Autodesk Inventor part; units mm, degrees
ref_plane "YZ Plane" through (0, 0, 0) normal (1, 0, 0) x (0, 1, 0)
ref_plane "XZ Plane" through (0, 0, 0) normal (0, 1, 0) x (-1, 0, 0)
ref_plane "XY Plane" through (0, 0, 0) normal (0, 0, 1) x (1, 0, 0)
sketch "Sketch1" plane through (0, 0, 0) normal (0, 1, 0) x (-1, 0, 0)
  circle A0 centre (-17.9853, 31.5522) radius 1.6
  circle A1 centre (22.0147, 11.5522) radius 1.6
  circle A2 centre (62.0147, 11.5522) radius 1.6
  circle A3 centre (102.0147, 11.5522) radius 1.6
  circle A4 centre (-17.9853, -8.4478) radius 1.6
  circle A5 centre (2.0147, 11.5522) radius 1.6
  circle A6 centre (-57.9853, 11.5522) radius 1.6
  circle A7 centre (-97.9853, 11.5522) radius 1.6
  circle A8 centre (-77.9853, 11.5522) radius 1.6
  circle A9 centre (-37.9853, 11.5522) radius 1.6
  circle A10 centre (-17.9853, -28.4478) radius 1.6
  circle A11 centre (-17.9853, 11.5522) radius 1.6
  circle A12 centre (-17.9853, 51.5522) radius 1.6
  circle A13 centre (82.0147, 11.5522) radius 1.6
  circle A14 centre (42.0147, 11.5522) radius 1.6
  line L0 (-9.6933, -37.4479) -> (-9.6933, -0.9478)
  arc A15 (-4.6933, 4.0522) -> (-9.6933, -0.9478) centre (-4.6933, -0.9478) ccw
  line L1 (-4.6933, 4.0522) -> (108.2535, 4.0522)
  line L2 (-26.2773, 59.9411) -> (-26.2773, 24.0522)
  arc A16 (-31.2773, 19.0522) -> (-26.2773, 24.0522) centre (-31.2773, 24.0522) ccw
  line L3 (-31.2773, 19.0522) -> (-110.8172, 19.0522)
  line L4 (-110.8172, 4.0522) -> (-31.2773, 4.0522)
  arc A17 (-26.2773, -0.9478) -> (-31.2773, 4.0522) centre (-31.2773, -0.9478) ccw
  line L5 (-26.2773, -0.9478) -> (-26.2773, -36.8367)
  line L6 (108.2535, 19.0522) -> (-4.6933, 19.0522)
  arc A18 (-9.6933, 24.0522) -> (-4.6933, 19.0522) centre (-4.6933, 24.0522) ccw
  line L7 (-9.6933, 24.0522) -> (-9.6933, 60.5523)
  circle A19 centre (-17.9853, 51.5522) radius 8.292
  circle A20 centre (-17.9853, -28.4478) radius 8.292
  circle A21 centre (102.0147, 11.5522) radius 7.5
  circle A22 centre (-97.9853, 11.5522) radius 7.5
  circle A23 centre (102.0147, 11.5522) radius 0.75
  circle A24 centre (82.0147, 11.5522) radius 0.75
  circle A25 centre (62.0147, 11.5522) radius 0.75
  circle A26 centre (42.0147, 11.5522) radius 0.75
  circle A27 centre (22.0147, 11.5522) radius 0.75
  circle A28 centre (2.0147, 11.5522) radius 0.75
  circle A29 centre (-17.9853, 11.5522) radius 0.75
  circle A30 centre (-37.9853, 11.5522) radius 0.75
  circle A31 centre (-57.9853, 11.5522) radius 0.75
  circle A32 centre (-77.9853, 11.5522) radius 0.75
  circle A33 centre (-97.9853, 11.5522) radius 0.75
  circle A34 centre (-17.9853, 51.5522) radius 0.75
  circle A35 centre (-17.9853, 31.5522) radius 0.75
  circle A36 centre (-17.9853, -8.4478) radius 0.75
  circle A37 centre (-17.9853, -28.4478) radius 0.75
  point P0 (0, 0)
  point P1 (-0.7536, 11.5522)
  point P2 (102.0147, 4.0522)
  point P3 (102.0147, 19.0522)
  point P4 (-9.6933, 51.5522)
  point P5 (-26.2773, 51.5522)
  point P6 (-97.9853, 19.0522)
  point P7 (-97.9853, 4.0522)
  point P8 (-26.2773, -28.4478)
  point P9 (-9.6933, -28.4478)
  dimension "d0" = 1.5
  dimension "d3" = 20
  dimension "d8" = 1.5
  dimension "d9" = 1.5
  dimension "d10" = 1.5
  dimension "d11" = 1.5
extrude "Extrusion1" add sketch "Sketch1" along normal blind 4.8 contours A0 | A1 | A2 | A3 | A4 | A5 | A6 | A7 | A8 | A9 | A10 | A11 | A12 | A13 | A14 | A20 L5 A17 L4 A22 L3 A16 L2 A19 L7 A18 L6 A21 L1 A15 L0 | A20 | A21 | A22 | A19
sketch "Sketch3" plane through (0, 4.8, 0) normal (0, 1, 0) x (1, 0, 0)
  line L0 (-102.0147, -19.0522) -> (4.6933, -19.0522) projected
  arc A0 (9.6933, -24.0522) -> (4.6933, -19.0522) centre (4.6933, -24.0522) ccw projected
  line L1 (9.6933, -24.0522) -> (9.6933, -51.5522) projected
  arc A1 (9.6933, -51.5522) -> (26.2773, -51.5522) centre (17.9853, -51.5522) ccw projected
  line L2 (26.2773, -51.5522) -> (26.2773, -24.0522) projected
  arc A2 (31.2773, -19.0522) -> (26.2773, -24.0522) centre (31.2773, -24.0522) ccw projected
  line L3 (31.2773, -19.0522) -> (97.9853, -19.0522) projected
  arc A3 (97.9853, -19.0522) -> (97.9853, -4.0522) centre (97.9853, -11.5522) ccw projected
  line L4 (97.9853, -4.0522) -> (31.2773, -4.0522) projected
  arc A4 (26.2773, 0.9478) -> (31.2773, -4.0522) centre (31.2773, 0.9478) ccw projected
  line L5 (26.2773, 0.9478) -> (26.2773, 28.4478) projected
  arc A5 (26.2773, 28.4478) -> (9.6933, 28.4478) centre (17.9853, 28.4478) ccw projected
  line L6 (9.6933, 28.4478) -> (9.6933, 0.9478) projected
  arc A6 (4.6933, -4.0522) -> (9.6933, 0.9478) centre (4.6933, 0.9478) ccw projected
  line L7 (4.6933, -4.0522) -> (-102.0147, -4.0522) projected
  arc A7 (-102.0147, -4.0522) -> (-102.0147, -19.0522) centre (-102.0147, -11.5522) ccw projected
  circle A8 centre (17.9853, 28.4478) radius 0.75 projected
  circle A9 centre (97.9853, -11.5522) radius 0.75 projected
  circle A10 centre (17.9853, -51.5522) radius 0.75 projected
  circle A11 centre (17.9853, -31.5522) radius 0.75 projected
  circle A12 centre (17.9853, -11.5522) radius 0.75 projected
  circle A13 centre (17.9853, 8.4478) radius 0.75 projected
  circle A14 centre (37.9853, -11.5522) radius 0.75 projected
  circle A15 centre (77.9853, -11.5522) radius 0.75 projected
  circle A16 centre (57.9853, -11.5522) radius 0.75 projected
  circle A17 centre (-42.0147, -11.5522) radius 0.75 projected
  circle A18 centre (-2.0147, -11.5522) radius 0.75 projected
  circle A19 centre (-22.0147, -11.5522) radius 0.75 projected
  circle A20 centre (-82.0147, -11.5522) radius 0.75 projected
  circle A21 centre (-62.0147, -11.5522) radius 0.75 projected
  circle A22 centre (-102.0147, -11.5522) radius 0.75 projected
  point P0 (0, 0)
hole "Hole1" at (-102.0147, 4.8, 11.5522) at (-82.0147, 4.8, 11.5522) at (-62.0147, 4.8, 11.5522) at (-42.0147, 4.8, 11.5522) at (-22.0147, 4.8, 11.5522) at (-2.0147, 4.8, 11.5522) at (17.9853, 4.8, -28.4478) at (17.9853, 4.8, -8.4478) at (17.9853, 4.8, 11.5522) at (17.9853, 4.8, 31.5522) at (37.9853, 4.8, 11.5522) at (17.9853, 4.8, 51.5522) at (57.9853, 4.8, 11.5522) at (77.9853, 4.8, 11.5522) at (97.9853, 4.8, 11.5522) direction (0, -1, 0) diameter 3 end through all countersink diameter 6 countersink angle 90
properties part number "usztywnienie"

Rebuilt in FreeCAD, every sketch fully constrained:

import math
import FreeCAD as App
import Part
import Sketcher

doc = App.newDocument("Part")
body = doc.addObject("PartDesign::Body", "Body")

# Sketch on XZ plane
sketch1 = body.newObject("Sketcher::SketchObject", "Sketch")
sketch1.AttachmentSupport = (doc.getObject("XZ_Plane"), [""])
sketch1.MapMode = "FlatFace"
sketch1.addGeometry([
    Part.LineSegment(App.Vector(26.3, -0.9, 0), App.Vector(26.3, -28.4, 0)),  # 0
    Part.ArcOfCircle(Part.Circle(App.Vector(18, -28.4, 0), App.Vector(0, 0, 1), 8.3), math.radians(180), math.radians(360)),  # 1
    Part.LineSegment(App.Vector(9.7, -28.4, 0), App.Vector(9.7, -0.9, 0)),  # 2
    Part.ArcOfCircle(Part.Circle(App.Vector(4.7, -0.9, 0), App.Vector(0, 0, 1), 5), math.radians(0), math.radians(90)),  # 3
    Part.LineSegment(App.Vector(4.7, 4.1, 0), App.Vector(-102, 4.1, 0)),  # 4
    Part.ArcOfCircle(Part.Circle(App.Vector(-102, 11.6, 0), App.Vector(0, 0, 1), 7.5), math.radians(90), math.radians(270)),  # 5
    Part.LineSegment(App.Vector(-102, 19.1, 0), App.Vector(4.7, 19.1, 0)),  # 6
    Part.ArcOfCircle(Part.Circle(App.Vector(4.7, 24.1, 0), App.Vector(0, 0, 1), 5), math.radians(-90), math.radians(0)),  # 7
    Part.LineSegment(App.Vector(9.7, 24.1, 0), App.Vector(9.7, 51.6, 0)),  # 8
    Part.ArcOfCircle(Part.Circle(App.Vector(18, 51.6, 0), App.Vector(0, 0, 1), 8.3), math.radians(0), math.radians(180)),  # 9
    Part.LineSegment(App.Vector(26.3, 51.6, 0), App.Vector(26.3, 24.1, 0)),  # 10
    Part.ArcOfCircle(Part.Circle(App.Vector(31.3, 24.1, 0), App.Vector(0, 0, 1), 5), math.radians(180), math.radians(270)),  # 11
    Part.LineSegment(App.Vector(31.3, 19.1, 0), App.Vector(98, 19.1, 0)),  # 12
    Part.ArcOfCircle(Part.Circle(App.Vector(98, 11.6, 0), App.Vector(0, 0, 1), 7.5), math.radians(-90), math.radians(90)),  # 13
    Part.LineSegment(App.Vector(98, 4.1, 0), App.Vector(31.3, 4.1, 0)),  # 14
    Part.ArcOfCircle(Part.Circle(App.Vector(31.3, -0.9, 0), App.Vector(0, 0, 1), 5), math.radians(90), math.radians(180)),  # 15
    Part.Circle(App.Vector(18, 31.6, 0), App.Vector(0, 0, 1), 0.8),  # 16
    Part.Circle(App.Vector(18, -8.4, 0), App.Vector(0, 0, 1), 0.8),  # 17
    Part.Circle(App.Vector(78, 11.6, 0), App.Vector(0, 0, 1), 0.8),  # 18
    Part.Circle(App.Vector(58, 11.6, 0), App.Vector(0, 0, 1), 0.8),  # 19
    Part.Circle(App.Vector(38, 11.6, 0), App.Vector(0, 0, 1), 0.8),  # 20
    Part.Circle(App.Vector(18, 11.6, 0), App.Vector(0, 0, 1), 0.8),  # 21
    Part.Circle(App.Vector(-82, 11.6, 0), App.Vector(0, 0, 1), 0.8),  # 22
    Part.Circle(App.Vector(-2, 11.6, 0), App.Vector(0, 0, 1), 0.8),  # 23
    Part.Circle(App.Vector(-22, 11.6, 0), App.Vector(0, 0, 1), 0.8),  # 24
    Part.Circle(App.Vector(-42, 11.6, 0), App.Vector(0, 0, 1), 0.8),  # 25
    Part.Circle(App.Vector(-62, 11.6, 0), App.Vector(0, 0, 1), 0.8),  # 26
    Part.Circle(App.Vector(18, -28.4, 0), App.Vector(0, 0, 1), 0.8),  # 27
    Part.Circle(App.Vector(98, 11.6, 0), App.Vector(0, 0, 1), 0.8),  # 28
    Part.Circle(App.Vector(18, 51.6, 0), App.Vector(0, 0, 1), 0.8),  # 29
    Part.Circle(App.Vector(-102, 11.6, 0), App.Vector(0, 0, 1), 0.8),  # 30
], False)
sketch1.addConstraint([
    Sketcher.Constraint("Tangent", 0, 2, 1, 2),
    Sketcher.Constraint("Tangent", 1, 1, 2, 1),
    Sketcher.Constraint("Tangent", 2, 2, 3, 1),
    Sketcher.Constraint("Tangent", 3, 2, 4, 1),
    Sketcher.Constraint("Tangent", 4, 2, 5, 2),
    Sketcher.Constraint("Tangent", 5, 1, 6, 1),
    Sketcher.Constraint("Tangent", 6, 2, 7, 1),
    Sketcher.Constraint("Tangent", 7, 2, 8, 1),
    Sketcher.Constraint("Tangent", 8, 2, 9, 2),
    Sketcher.Constraint("Tangent", 9, 1, 10, 1),
    Sketcher.Constraint("Tangent", 10, 2, 11, 1),
    Sketcher.Constraint("Tangent", 11, 2, 12, 1),
    Sketcher.Constraint("Tangent", 12, 2, 13, 2),
    Sketcher.Constraint("Tangent", 13, 1, 14, 1),
    Sketcher.Constraint("Tangent", 14, 2, 15, 1),
    Sketcher.Constraint("Tangent", 15, 2, 0, 1),
    Sketcher.Constraint("Vertical", 0),
    Sketcher.Constraint("Vertical", 2),
    Sketcher.Constraint("Horizontal", 4),
    Sketcher.Constraint("Horizontal", 6),
    Sketcher.Constraint("Vertical", 8),
    Sketcher.Constraint("Vertical", 10),
    Sketcher.Constraint("Horizontal", 12),
    Sketcher.Constraint("Horizontal", 14),
    Sketcher.Constraint("Coincident", 27, 3, 1, 3),
    Sketcher.Constraint("Coincident", 28, 3, 13, 3),
    Sketcher.Constraint("Coincident", 29, 3, 9, 3),
    Sketcher.Constraint("Coincident", 30, 3, 5, 3),
    Sketcher.Constraint("Equal", 3, 7),
    Sketcher.Constraint("Equal", 1, 9),
    Sketcher.Constraint("Equal", 7, 11),
    Sketcher.Constraint("Equal", 5, 13),
    Sketcher.Constraint("Equal", 11, 15),
    Sketcher.Constraint("Equal", 16, 17),
    Sketcher.Constraint("Equal", 17, 18),
    Sketcher.Constraint("Equal", 18, 19),
    Sketcher.Constraint("Equal", 19, 20),
    Sketcher.Constraint("Equal", 20, 21),
    Sketcher.Constraint("Equal", 21, 22),
    Sketcher.Constraint("Equal", 22, 23),
    Sketcher.Constraint("Equal", 23, 24),
    Sketcher.Constraint("Equal", 24, 25),
    Sketcher.Constraint("Equal", 25, 26),
    Sketcher.Constraint("Equal", 26, 27),
    Sketcher.Constraint("Equal", 27, 28),
    Sketcher.Constraint("Equal", 28, 29),
    Sketcher.Constraint("Equal", 29, 30),
    Sketcher.Constraint("Horizontal", 7, 3, 11, 3),
    Sketcher.Constraint("Horizontal", 13, 3, 18, 3),
    Sketcher.Constraint("Horizontal", 18, 3, 19, 3),
    Sketcher.Constraint("Horizontal", 19, 3, 20, 3),
    Sketcher.Constraint("Horizontal", 20, 3, 21, 3),
    Sketcher.Constraint("Horizontal", 21, 3, 22, 3),
    Sketcher.Constraint("Horizontal", 22, 3, 23, 3),
    Sketcher.Constraint("Horizontal", 23, 3, 24, 3),
    Sketcher.Constraint("Horizontal", 24, 3, 25, 3),
    Sketcher.Constraint("Horizontal", 25, 3, 26, 3),
    Sketcher.Constraint("Vertical", 3, 3, 7, 3),
    Sketcher.Constraint("Vertical", 9, 3, 16, 3),
    Sketcher.Constraint("Vertical", 16, 3, 17, 3),
    Sketcher.Constraint("Vertical", 17, 3, 21, 3),
    Sketcher.Constraint("Equal", 2, 8),
    Sketcher.Constraint("Radius", 3, 5.0),
    Sketcher.Constraint("Diameter", 16, 1.5),
    Sketcher.Constraint("DistanceY", 16, 3, 9, 3, 20.0),
    Sketcher.Constraint("DistanceY", 1, 3, 17, 3, 20.0),
    Sketcher.Constraint("DistanceX", 18, 3, 13, 3, 20.0),
    Sketcher.Constraint("DistanceY", 18, 3, 16, 3, 20.0),
    Sketcher.Constraint("DistanceX", 19, 3, 18, 3, 20.0),
    Sketcher.Constraint("DistanceX", 20, 3, 19, 3, 20.0),
    Sketcher.Constraint("DistanceX", 16, 3, 20, 3, 20.0),
    Sketcher.Constraint("DistanceX", 5, 3, 22, 3, 20.0),
    Sketcher.Constraint("DistanceX", 23, 3, 21, 3, 20.0),
    Sketcher.Constraint("DistanceX", 24, 3, 23, 3, 20.0),
    Sketcher.Constraint("DistanceX", 25, 3, 24, 3, 20.0),
    Sketcher.Constraint("DistanceX", 26, 3, 25, 3, 20.0),
    Sketcher.Constraint("DistanceX", 22, 3, 26, 3, 20.0),
    Sketcher.Constraint("Radius", 5, 7.5),
    Sketcher.Constraint("Radius", 1, 8.292),
    Sketcher.Constraint("DistanceX", -1, 1, 1, 3, 17.9853),
    Sketcher.Constraint("DistanceY", 1, 3, -1, 1, 28.4478),
])
pad1 = body.newObject("PartDesign::Pad", "Pad")
pad1.Profile = sketch1
pad1.Length = 4.8
pad1.Reversed = True

# Sketch on XZ plane
sketch2 = body.newObject("Sketcher::SketchObject", "Sketch001")
sketch2.AttachmentSupport = (doc.getObject("XZ_Plane"), [""])
sketch2.MapMode = "FlatFace"
sketch2.AttachmentOffset = App.Placement(App.Vector(0, 0, -4.8), App.Rotation())
sketch2.addGeometry([
    Part.Circle(App.Vector(-102, 11.6, 0), App.Vector(0, 0, 1), 1.5),  # 0
    Part.Circle(App.Vector(-82, 11.6, 0), App.Vector(0, 0, 1), 1.5),  # 1
    Part.Circle(App.Vector(-62, 11.6, 0), App.Vector(0, 0, 1), 1.5),  # 2
    Part.Circle(App.Vector(-42, 11.6, 0), App.Vector(0, 0, 1), 1.5),  # 3
    Part.Circle(App.Vector(-22, 11.6, 0), App.Vector(0, 0, 1), 1.5),  # 4
    Part.Circle(App.Vector(-2, 11.6, 0), App.Vector(0, 0, 1), 1.5),  # 5
    Part.Circle(App.Vector(18, -28.4, 0), App.Vector(0, 0, 1), 1.5),  # 6
    Part.Circle(App.Vector(18, -8.4, 0), App.Vector(0, 0, 1), 1.5),  # 7
    Part.Circle(App.Vector(18, 11.6, 0), App.Vector(0, 0, 1), 1.5),  # 8
    Part.Circle(App.Vector(18, 31.6, 0), App.Vector(0, 0, 1), 1.5),  # 9
    Part.Circle(App.Vector(38, 11.6, 0), App.Vector(0, 0, 1), 1.5),  # 10
    Part.Circle(App.Vector(18, 51.6, 0), App.Vector(0, 0, 1), 1.5),  # 11
    Part.Circle(App.Vector(58, 11.6, 0), App.Vector(0, 0, 1), 1.5),  # 12
    Part.Circle(App.Vector(78, 11.6, 0), App.Vector(0, 0, 1), 1.5),  # 13
    Part.Circle(App.Vector(98, 11.6, 0), App.Vector(0, 0, 1), 1.5),  # 14
], False)
sketch2.addConstraint([
    Sketcher.Constraint("Equal", 0, 1),
    Sketcher.Constraint("Equal", 1, 2),
    Sketcher.Constraint("Equal", 2, 3),
    Sketcher.Constraint("Equal", 3, 4),
    Sketcher.Constraint("Equal", 4, 5),
    Sketcher.Constraint("Equal", 5, 6),
    Sketcher.Constraint("Equal", 6, 7),
    Sketcher.Constraint("Equal", 7, 8),
    Sketcher.Constraint("Equal", 8, 9),
    Sketcher.Constraint("Equal", 9, 10),
    Sketcher.Constraint("Equal", 10, 11),
    Sketcher.Constraint("Equal", 11, 12),
    Sketcher.Constraint("Equal", 12, 13),
    Sketcher.Constraint("Equal", 13, 14),
    Sketcher.Constraint("Horizontal", 0, 3, 1, 3),
    Sketcher.Constraint("Horizontal", 1, 3, 2, 3),
    Sketcher.Constraint("Horizontal", 2, 3, 3, 3),
    Sketcher.Constraint("Horizontal", 3, 3, 4, 3),
    Sketcher.Constraint("Horizontal", 4, 3, 5, 3),
    Sketcher.Constraint("Horizontal", 5, 3, 8, 3),
    Sketcher.Constraint("Horizontal", 8, 3, 10, 3),
    Sketcher.Constraint("Horizontal", 10, 3, 12, 3),
    Sketcher.Constraint("Horizontal", 12, 3, 13, 3),
    Sketcher.Constraint("Horizontal", 13, 3, 14, 3),
    Sketcher.Constraint("Vertical", 6, 3, 7, 3),
    Sketcher.Constraint("Vertical", 7, 3, 8, 3),
    Sketcher.Constraint("Vertical", 8, 3, 9, 3),
    Sketcher.Constraint("Vertical", 9, 3, 11, 3),
    Sketcher.Constraint("Diameter", 0, 3.0),
    Sketcher.Constraint("DistanceX", 0, 3, 1, 3, 20.0),
    Sketcher.Constraint("DistanceX", 1, 3, 2, 3, 20.0),
    Sketcher.Constraint("DistanceX", 2, 3, 3, 3, 20.0),
    Sketcher.Constraint("DistanceX", 3, 3, 4, 3, 20.0),
    Sketcher.Constraint("DistanceX", 4, 3, 5, 3, 20.0),
    Sketcher.Constraint("DistanceX", 5, 3, 6, 3, 20.0),
    Sketcher.Constraint("DistanceY", 6, 3, 5, 3, 40.0),
    Sketcher.Constraint("DistanceY", 6, 3, 7, 3, 20.0),
    Sketcher.Constraint("DistanceY", 8, 3, 9, 3, 20.0),
    Sketcher.Constraint("DistanceX", 8, 3, 10, 3, 20.0),
    Sketcher.Constraint("DistanceY", 9, 3, 11, 3, 20.0),
    Sketcher.Constraint("DistanceX", 10, 3, 12, 3, 20.0),
    Sketcher.Constraint("DistanceX", 12, 3, 13, 3, 20.0),
    Sketcher.Constraint("DistanceX", 13, 3, 14, 3, 20.0),
    Sketcher.Constraint("DistanceX", 0, 3, -1, 1, 102.0147),
    Sketcher.Constraint("DistanceY", -1, 1, 0, 3, 11.5522),
])
doc.recompute()
hole = body.newObject("PartDesign::Hole", "Hole")
hole.Profile = sketch2
hole.ThreadType = "None"
hole.Diameter = 3
hole.DepthType = "ThroughAll"
hole.HoleCutType = "Countersink"
hole.HoleCutDiameter = 6
hole.HoleCutCountersinkAngle = 90
hole.Reversed = True

doc.recompute()
